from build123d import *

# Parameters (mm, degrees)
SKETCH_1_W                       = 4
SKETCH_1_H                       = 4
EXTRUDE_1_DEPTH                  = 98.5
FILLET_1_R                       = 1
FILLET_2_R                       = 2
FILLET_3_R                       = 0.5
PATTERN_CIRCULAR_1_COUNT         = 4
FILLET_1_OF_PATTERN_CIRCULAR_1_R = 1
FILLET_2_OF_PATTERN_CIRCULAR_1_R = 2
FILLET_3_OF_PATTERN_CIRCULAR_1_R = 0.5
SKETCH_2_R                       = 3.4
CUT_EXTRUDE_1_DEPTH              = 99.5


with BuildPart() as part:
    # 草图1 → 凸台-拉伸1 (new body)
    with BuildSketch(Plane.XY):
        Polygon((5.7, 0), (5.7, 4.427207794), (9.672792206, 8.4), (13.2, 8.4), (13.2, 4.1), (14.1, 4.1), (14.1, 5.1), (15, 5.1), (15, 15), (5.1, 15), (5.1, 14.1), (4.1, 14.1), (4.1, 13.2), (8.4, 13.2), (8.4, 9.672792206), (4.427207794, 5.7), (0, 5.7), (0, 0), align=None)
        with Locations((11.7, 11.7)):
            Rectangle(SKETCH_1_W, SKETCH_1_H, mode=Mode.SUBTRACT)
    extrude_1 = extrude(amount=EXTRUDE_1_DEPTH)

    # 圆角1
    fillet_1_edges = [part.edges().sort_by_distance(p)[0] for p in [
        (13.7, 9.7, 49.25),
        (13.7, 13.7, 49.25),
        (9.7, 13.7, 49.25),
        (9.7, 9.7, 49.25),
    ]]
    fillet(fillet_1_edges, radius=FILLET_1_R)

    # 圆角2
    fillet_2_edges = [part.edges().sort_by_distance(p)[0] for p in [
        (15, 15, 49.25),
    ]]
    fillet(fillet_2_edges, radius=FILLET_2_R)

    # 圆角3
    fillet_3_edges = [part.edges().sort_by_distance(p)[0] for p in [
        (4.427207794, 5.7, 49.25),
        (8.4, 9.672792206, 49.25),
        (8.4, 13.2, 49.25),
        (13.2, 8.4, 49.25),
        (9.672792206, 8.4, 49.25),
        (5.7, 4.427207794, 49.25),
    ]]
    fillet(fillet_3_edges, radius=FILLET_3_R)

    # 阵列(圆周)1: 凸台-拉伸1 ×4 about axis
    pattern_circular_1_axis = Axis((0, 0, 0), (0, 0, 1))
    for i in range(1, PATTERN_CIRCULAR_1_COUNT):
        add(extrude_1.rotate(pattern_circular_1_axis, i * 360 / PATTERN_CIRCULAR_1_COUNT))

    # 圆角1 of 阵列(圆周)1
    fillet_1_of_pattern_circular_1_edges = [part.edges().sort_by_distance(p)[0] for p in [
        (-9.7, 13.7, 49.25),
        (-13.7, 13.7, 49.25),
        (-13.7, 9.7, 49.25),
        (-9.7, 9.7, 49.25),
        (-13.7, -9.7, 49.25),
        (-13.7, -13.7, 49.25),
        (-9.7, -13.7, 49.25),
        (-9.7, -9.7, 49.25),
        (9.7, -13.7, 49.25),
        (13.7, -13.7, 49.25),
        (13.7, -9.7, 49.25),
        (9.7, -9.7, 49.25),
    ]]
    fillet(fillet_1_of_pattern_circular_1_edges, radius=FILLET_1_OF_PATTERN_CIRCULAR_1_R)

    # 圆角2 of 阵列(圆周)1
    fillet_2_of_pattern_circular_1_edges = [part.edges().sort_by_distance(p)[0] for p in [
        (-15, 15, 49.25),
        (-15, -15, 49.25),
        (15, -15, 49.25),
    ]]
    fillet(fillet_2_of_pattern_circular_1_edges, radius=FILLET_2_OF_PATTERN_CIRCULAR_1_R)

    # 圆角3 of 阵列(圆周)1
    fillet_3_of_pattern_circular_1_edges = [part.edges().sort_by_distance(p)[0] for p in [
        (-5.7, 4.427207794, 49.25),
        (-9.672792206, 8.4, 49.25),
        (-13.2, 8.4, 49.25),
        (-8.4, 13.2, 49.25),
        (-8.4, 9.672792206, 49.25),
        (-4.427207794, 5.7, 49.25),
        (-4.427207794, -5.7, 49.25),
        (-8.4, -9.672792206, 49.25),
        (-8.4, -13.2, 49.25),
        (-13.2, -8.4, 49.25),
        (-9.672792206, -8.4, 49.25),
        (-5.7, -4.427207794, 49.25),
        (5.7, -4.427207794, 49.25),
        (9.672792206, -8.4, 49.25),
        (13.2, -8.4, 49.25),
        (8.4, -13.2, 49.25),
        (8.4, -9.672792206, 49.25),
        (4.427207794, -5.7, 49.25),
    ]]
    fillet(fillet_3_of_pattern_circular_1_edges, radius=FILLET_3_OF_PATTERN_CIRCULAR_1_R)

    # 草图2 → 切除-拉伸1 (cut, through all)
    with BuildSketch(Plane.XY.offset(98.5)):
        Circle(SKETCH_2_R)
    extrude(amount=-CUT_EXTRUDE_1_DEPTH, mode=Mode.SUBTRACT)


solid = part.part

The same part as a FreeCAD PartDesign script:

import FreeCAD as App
import Part
import Sketcher
Q = App.Units.Quantity


def edges_at(feature, points):
    """Names of the edges that pass closest to the given points."""
    edges = feature.Shape.Edges
    near = lambda p: min(range(len(edges)), key=lambda i: edges[i].distToShape(Part.Vertex(*p))[0])
    return sorted({f"Edge{near(p) + 1}" for p in points})

doc = App.newDocument("Part")
params = doc.addObject("Spreadsheet::Sheet", "Params")
for row, (alias, value) in enumerate([
    ("sketch1_width", "1 mm"),
    ("sketch1_width2", "4 mm"),
    ("sketch1_width3", "0.9 mm"),
    ("sketch1_width4", "9.9 mm"),
    ("sketch1_width5", "4.3 mm"),
    ("pad1_length", "98.5 mm"),
    ("fillet_radius", "1 mm"),
    ("fillet2_radius", "2 mm"),
    ("fillet3_radius", "0.5 mm"),
    ("fillet4_radius", "1 mm"),
    ("fillet5_radius", "2 mm"),
    ("fillet6_radius", "0.5 mm"),
    ("sketch2_diameter", "6.8 mm"),
], start=1):
    params.set(f"A{row}", alias)
    params.set(f"B{row}", "=" + value)
    params.setAlias(f"B{row}", alias)

body = doc.addObject("PartDesign::Body", "Body")

sketch1 = doc.addObject("Sketcher::SketchObject", "Sketch")
body.addObject(sketch1)
sketch1.AttachmentSupport = (doc.XY_Plane, [""])
sketch1.MapMode = "FlatFace"
sketch1.addGeometry([
    Part.LineSegment(App.Vector(5.7, 0, 0), App.Vector(5.7, 4.4, 0)),
    Part.LineSegment(App.Vector(5.7, 4.4, 0), App.Vector(9.7, 8.4, 0)),
    Part.LineSegment(App.Vector(9.7, 8.4, 0), App.Vector(13.2, 8.4, 0)),
    Part.LineSegment(App.Vector(13.2, 8.4, 0), App.Vector(13.2, 4.1, 0)),
    Part.LineSegment(App.Vector(13.2, 4.1, 0), App.Vector(14.1, 4.1, 0)),
    Part.LineSegment(App.Vector(14.1, 4.1, 0), App.Vector(14.1, 5.1, 0)),
    Part.LineSegment(App.Vector(14.1, 5.1, 0), App.Vector(15, 5.1, 0)),
    Part.LineSegment(App.Vector(15, 5.1, 0), App.Vector(15, 15, 0)),
    Part.LineSegment(App.Vector(15, 15, 0), App.Vector(5.1, 15, 0)),
    Part.LineSegment(App.Vector(5.1, 15, 0), App.Vector(5.1, 14.1, 0)),
    Part.LineSegment(App.Vector(5.1, 14.1, 0), App.Vector(4.1, 14.1, 0)),
    Part.LineSegment(App.Vector(4.1, 14.1, 0), App.Vector(4.1, 13.2, 0)),
    Part.LineSegment(App.Vector(4.1, 13.2, 0), App.Vector(8.4, 13.2, 0)),
    Part.LineSegment(App.Vector(8.4, 13.2, 0), App.Vector(8.4, 9.7, 0)),
    Part.LineSegment(App.Vector(8.4, 9.7, 0), App.Vector(4.4, 5.7, 0)),
    Part.LineSegment(App.Vector(4.4, 5.7, 0), App.Vector(0, 5.7, 0)),
    Part.LineSegment(App.Vector(0, 5.7, 0), App.Vector(0, 0, 0)),
    Part.LineSegment(App.Vector(0, 0, 0), App.Vector(5.7, 0, 0)),
    Part.LineSegment(App.Vector(13.7, 9.7, 0), App.Vector(9.7, 9.7, 0)),
    Part.LineSegment(App.Vector(9.7, 9.7, 0), App.Vector(9.7, 13.7, 0)),
    Part.LineSegment(App.Vector(9.7, 13.7, 0), App.Vector(13.7, 13.7, 0)),
    Part.LineSegment(App.Vector(13.7, 13.7, 0), App.Vector(13.7, 9.7, 0)),
], False)
sketch1.addConstraint([
    Sketcher.Constraint("Coincident", 0, 2, 1, 1),
    Sketcher.Constraint("Coincident", 1, 2, 2, 1),
    Sketcher.Constraint("Coincident", 2, 2, 3, 1),
    Sketcher.Constraint("Coincident", 3, 2, 4, 1),
    Sketcher.Constraint("Coincident", 4, 2, 5, 1),
    Sketcher.Constraint("Coincident", 5, 2, 6, 1),
    Sketcher.Constraint("Coincident", 6, 2, 7, 1),
    Sketcher.Constraint("Coincident", 7, 2, 8, 1),
    Sketcher.Constraint("Coincident", 8, 2, 9, 1),
    Sketcher.Constraint("Coincident", 9, 2, 10, 1),
    Sketcher.Constraint("Coincident", 10, 2, 11, 1),
    Sketcher.Constraint("Coincident", 11, 2, 12, 1),
    Sketcher.Constraint("Coincident", 12, 2, 13, 1),
    Sketcher.Constraint("Coincident", 13, 2, 14, 1),
    Sketcher.Constraint("Coincident", 14, 2, 15, 1),
    Sketcher.Constraint("Coincident", 15, 2, 16, 1),
    Sketcher.Constraint("Coincident", 16, 2, 17, 1),
    Sketcher.Constraint("Coincident", 17, 2, 0, 1),
    Sketcher.Constraint("Coincident", 18, 2, 19, 1),
    Sketcher.Constraint("Coincident", 19, 2, 20, 1),
    Sketcher.Constraint("Coincident", 20, 2, 21, 1),
    Sketcher.Constraint("Coincident", 21, 2, 18, 1),
    Sketcher.Constraint("Vertical", 0),
    Sketcher.Constraint("Horizontal", 2),
    Sketcher.Constraint("Vertical", 3),
    Sketcher.Constraint("Horizontal", 4),
    Sketcher.Constraint("Vertical", 5),
    Sketcher.Constraint("Horizontal", 6),
    Sketcher.Constraint("Vertical", 7),
    Sketcher.Constraint("Horizontal", 8),
    Sketcher.Constraint("Vertical", 9),
    Sketcher.Constraint("Horizontal", 10),
    Sketcher.Constraint("Vertical", 11),
    Sketcher.Constraint("Horizontal", 12),
    Sketcher.Constraint("Vertical", 13),
    Sketcher.Constraint("Horizontal", 15),
    Sketcher.Constraint("Vertical", 16),
    Sketcher.Constraint("Horizontal", 17),
    Sketcher.Constraint("Horizontal", 18),
    Sketcher.Constraint("Vertical", 19),
    Sketcher.Constraint("Horizontal", 20),
    Sketcher.Constraint("Vertical", 21),
    Sketcher.Constraint("Coincident", 16, 2, -1, 1),
    Sketcher.Constraint("Parallel", 1, 14),
    Sketcher.Constraint("Equal", 4, 6),
    Sketcher.Constraint("Equal", 15, 0),
    Sketcher.Constraint("Equal", 12, 3),
    Sketcher.Constraint("Equal", 10, 5),
    Sketcher.Constraint("Equal", 8, 7),
    Sketcher.Constraint("Equal", 6, 9),
    Sketcher.Constraint("Equal", 9, 11),
    Sketcher.Constraint("Equal", 2, 13),
    Sketcher.Constraint("Equal", 17, 16),
    Sketcher.Constraint("Equal", 20, 19),
    Sketcher.Constraint("DistanceX", 10, 2, 10, 1, 1.0),
    Sketcher.Constraint("DistanceX", 18, 2, 18, 1, 4.0),
    Sketcher.Constraint("Angle", 1, Q("45 deg")),
    Sketcher.Constraint("DistanceX", 4, 1, 4, 2, 0.9),
    Sketcher.Constraint("DistanceX", 8, 2, 8, 1, 9.9),
    Sketcher.Constraint("DistanceX", 12, 1, 12, 2, 4.3),
    Sketcher.Constraint("DistanceX", 17, 1, 17, 2, 5.7),
    Sketcher.Constraint("DistanceX", -1, 1, 6, 2, 15.0),
    Sketcher.Constraint("DistanceX", -1, 1, 18, 2, 9.7),
    Sketcher.Constraint("DistanceY", -1, 1, 18, 2, 9.7),
    Sketcher.Constraint("DistanceX", 2, 1, 2, 2, 3.527208),
])
sketch1.setExpression("Constraints[54]", "Params.sketch1_width")
sketch1.setExpression("Constraints[55]", "Params.sketch1_width2")
sketch1.setExpression("Constraints[57]", "Params.sketch1_width3")
sketch1.setExpression("Constraints[58]", "Params.sketch1_width4")
sketch1.setExpression("Constraints[59]", "Params.sketch1_width5")
pad1 = doc.addObject("PartDesign::Pad", "Pad")
body.addObject(pad1)
pad1.Profile = sketch1
pad1.setExpression("Length", "Params.pad1_length")
doc.recompute()

fillet = doc.addObject("PartDesign::Fillet", "Fillet")
body.addObject(fillet)
fillet.Base = (pad1, edges_at(pad1, [
    (13.7, 9.7, 49.25),
    (13.7, 13.7, 49.25),
    (9.7, 13.7, 49.25),
    (9.7, 9.7, 49.25),
]))
fillet.setExpression("Radius", "Params.fillet_radius")
doc.recompute()

fillet2 = doc.addObject("PartDesign::Fillet", "Fillet001")
body.addObject(fillet2)
fillet2.Base = (fillet, edges_at(fillet, [(15, 15, 49.25)]))
fillet2.setExpression("Radius", "Params.fillet2_radius")
doc.recompute()

fillet3 = doc.addObject("PartDesign::Fillet", "Fillet002")
body.addObject(fillet3)
fillet3.Base = (fillet2, edges_at(fillet2, [
    (4.427, 5.7, 49.25),
    (8.4, 9.673, 49.25),
    (8.4, 13.2, 49.25),
    (13.2, 8.4, 49.25),
    (9.673, 8.4, 49.25),
    (5.7, 4.427, 49.25),
]))
fillet3.setExpression("Radius", "Params.fillet3_radius")
doc.recompute()

polarpattern = doc.addObject("PartDesign::PolarPattern", "PolarPattern")
body.addObject(polarpattern)
polarpattern.Originals = [pad1]
polarpattern.Axis = (doc.Z_Axis, [""])
polarpattern.Angle = 360
polarpattern.Occurrences = 4
body.Tip = polarpattern
doc.recompute()

fillet4 = doc.addObject("PartDesign::Fillet", "Fillet003")
body.addObject(fillet4)
fillet4.Base = (polarpattern, edges_at(polarpattern, [
    (-9.7, 13.7, 49.25),
    (-13.7, 13.7, 49.25),
    (-13.7, 9.7, 49.25),
    (-9.7, 9.7, 49.25),
    (-13.7, -9.7, 49.25),
    (-13.7, -13.7, 49.25),
    (-9.7, -13.7, 49.25),
    (-9.7, -9.7, 49.25),
    (9.7, -13.7, 49.25),
    (13.7, -13.7, 49.25),
    (13.7, -9.7, 49.25),
    (9.7, -9.7, 49.25),
]))
fillet4.setExpression("Radius", "Params.fillet4_radius")
doc.recompute()

fillet5 = doc.addObject("PartDesign::Fillet", "Fillet004")
body.addObject(fillet5)
fillet5.Base = (fillet4, edges_at(fillet4, [(-15, 15, 49.25), (-15, -15, 49.25), (15, -15, 49.25)]))
fillet5.setExpression("Radius", "Params.fillet5_radius")
doc.recompute()

fillet6 = doc.addObject("PartDesign::Fillet", "Fillet005")
body.addObject(fillet6)
fillet6.Base = (fillet5, edges_at(fillet5, [
    (-5.7, 4.427, 49.25),
    (-9.673, 8.4, 49.25),
    (-13.2, 8.4, 49.25),
    (-8.4, 13.2, 49.25),
    (-8.4, 9.673, 49.25),
    (-4.427, 5.7, 49.25),
    (-4.427, -5.7, 49.25),
    (-8.4, -9.673, 49.25),
    (-8.4, -13.2, 49.25),
    (-13.2, -8.4, 49.25),
    (-9.673, -8.4, 49.25),
    (-5.7, -4.427, 49.25),
    (5.7, -4.427, 49.25),
    (9.673, -8.4, 49.25),
    (13.2, -8.4, 49.25),
    (8.4, -13.2, 49.25),
    (8.4, -9.673, 49.25),
    (4.427, -5.7, 49.25),
]))
fillet6.setExpression("Radius", "Params.fillet6_radius")

sketch2 = doc.addObject("Sketcher::SketchObject", "Sketch001")
body.addObject(sketch2)
sketch2.AttachmentSupport = (doc.XY_Plane, [""])
sketch2.MapMode = "FlatFace"
sketch2.AttachmentOffset = App.Placement(App.Vector(0, 0, 98.5), App.Rotation())
sketch2.addGeometry(Part.Circle(App.Vector(0, 0, 0), App.Vector(0, 0, 1), 3.4), False)
sketch2.addConstraint([
    Sketcher.Constraint("Coincident", 0, 3, -1, 1),
    Sketcher.Constraint("Diameter", 0, 6.8),
])
sketch2.setExpression("Constraints[1]", "Params.sketch2_diameter")
pocket1 = doc.addObject("PartDesign::Pocket", "Pocket")
body.addObject(pocket1)
pocket1.Profile = sketch2
pocket1.Type = "ThroughAll"

doc.recompute()
